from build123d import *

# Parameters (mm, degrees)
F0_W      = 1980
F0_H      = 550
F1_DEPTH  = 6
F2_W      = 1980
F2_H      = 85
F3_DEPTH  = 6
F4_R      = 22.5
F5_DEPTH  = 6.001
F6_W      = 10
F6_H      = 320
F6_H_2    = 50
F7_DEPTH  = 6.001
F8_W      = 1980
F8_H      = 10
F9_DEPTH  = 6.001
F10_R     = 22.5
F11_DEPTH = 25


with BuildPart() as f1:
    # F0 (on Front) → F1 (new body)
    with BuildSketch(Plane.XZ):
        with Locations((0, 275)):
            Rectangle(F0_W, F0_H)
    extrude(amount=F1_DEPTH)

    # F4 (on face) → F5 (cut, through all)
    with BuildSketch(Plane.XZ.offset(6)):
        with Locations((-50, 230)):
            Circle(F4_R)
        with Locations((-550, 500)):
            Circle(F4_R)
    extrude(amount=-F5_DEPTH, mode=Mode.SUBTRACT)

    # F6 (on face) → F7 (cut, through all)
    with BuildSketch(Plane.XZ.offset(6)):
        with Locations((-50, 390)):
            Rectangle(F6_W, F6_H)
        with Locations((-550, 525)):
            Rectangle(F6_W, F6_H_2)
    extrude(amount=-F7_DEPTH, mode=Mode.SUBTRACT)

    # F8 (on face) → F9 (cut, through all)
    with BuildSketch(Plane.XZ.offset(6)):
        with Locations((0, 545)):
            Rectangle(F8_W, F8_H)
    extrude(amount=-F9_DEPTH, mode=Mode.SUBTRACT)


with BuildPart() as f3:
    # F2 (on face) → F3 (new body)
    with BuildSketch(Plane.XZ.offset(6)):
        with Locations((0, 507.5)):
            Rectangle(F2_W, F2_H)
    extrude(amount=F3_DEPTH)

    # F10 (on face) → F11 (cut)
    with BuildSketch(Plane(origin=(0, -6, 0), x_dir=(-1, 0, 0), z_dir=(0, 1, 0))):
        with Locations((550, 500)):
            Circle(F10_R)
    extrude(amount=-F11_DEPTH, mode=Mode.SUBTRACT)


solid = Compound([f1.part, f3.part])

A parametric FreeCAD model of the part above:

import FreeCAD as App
import Part
import Sketcher

V = App.Vector

doc = App.newDocument("Part")
body = doc.addObject("PartDesign::Body", "Body")

# Sketch on XZ plane
sketch1 = doc.addObject("Sketcher::SketchObject", "Sketch")
body.addObject(sketch1)
sketch1.AttachmentSupport = (doc.XZ_Plane, [""])
sketch1.MapMode = "FlatFace"
sketch1.addGeometry([
    Part.LineSegment(V(-990, 550, 0), V(-990, 0, 0)),
    Part.LineSegment(V(-990, 0, 0), V(990, 0, 0)),
    Part.LineSegment(V(990, 0, 0), V(990, 550, 0)),
    Part.LineSegment(V(990, 550, 0), V(-990, 550, 0)),
], False)
sketch1.addConstraint([
    Sketcher.Constraint("Coincident", 0, 2, 1, 1),
    Sketcher.Constraint("Coincident", 1, 2, 2, 1),
    Sketcher.Constraint("Coincident", 2, 2, 3, 1),
    Sketcher.Constraint("Coincident", 3, 2, 0, 1),
    Sketcher.Constraint("Vertical", 0),
    Sketcher.Constraint("Horizontal", 1),
    Sketcher.Constraint("Vertical", 2),
    Sketcher.Constraint("Horizontal", 3),
    Sketcher.Constraint("Symmetric", 0, 2, 1, 2, -1, 1),
    Sketcher.Constraint("DistanceX", 1, 1, 1, 2, 1980.0),
    Sketcher.Constraint("DistanceY", 0, 2, 0, 1, 550.0),
])
pad1 = doc.addObject("PartDesign::Pad", "Pad")
body.addObject(pad1)
pad1.Profile = sketch1
pad1.Length = 6

# Sketch on XZ plane
sketch2 = doc.addObject("Sketcher::SketchObject", "Sketch001")
body.addObject(sketch2)
sketch2.AttachmentSupport = (doc.XZ_Plane, [""])
sketch2.MapMode = "FlatFace"
sketch2.AttachmentOffset = App.Placement(V(0, 0, 6), App.Rotation())
sketch2.addGeometry([
    Part.Circle(V(-50, 230, 0), V(0, 0, 1), 22),
    Part.Circle(V(-550, 500, 0), V(0, 0, 1), 22),
], False)
sketch2.addConstraint([
    Sketcher.Constraint("Equal", 0, 1),
    Sketcher.Constraint("Diameter", 0, 45.0),
    Sketcher.Constraint("DistanceX", 0, 3, -1, 1, 50.0),
    Sketcher.Constraint("DistanceY", -1, 1, 0, 3, 230.0),
    Sketcher.Constraint("DistanceX", 1, 3, -1, 1, 550.0),
    Sketcher.Constraint("DistanceY", -1, 1, 1, 3, 500.0),
])
pocket1 = doc.addObject("PartDesign::Pocket", "Pocket")
body.addObject(pocket1)
pocket1.Profile = sketch2
pocket1.Type = "ThroughAll"

# Sketch on XZ plane
sketch3 = doc.addObject("Sketcher::SketchObject", "Sketch002")
body.addObject(sketch3)
sketch3.AttachmentSupport = (doc.XZ_Plane, [""])
sketch3.MapMode = "FlatFace"
sketch3.AttachmentOffset = App.Placement(V(0, 0, 6), App.Rotation())
sketch3.addGeometry([
    Part.LineSegment(V(-55, 550, 0), V(-55, 230, 0)),  # 0
    Part.LineSegment(V(-55, 230, 0), V(-45, 230, 0)),  # 1
    Part.LineSegment(V(-45, 230, 0), V(-45, 550, 0)),  # 2
    Part.LineSegment(V(-45, 550, 0), V(-55, 550, 0)),  # 3
    Part.LineSegment(V(-555, 550, 0), V(-555, 500, 0)),  # 4
    Part.LineSegment(V(-555, 500, 0), V(-545, 500, 0)),  # 5
    Part.LineSegment(V(-545, 500, 0), V(-545, 550, 0)),  # 6
    Part.LineSegment(V(-545, 550, 0), V(-555, 550, 0)),  # 7
], False)
sketch3.addConstraint([
    Sketcher.Constraint("Coincident", 0, 2, 1, 1),
    Sketcher.Constraint("Coincident", 1, 2, 2, 1),
    Sketcher.Constraint("Coincident", 2, 2, 3, 1),
    Sketcher.Constraint("Coincident", 3, 2, 0, 1),
    Sketcher.Constraint("Coincident", 4, 2, 5, 1),
    Sketcher.Constraint("Coincident", 5, 2, 6, 1),
    Sketcher.Constraint("Coincident", 6, 2, 7, 1),
    Sketcher.Constraint("Coincident", 7, 2, 4, 1),
    Sketcher.Constraint("Vertical", 0),
    Sketcher.Constraint("Horizontal", 1),
    Sketcher.Constraint("Vertical", 2),
    Sketcher.Constraint("Horizontal", 3),
    Sketcher.Constraint("Vertical", 4),
    Sketcher.Constraint("Horizontal", 5),
    Sketcher.Constraint("Vertical", 6),
    Sketcher.Constraint("Horizontal", 7),
    Sketcher.Constraint("Horizontal", 3, 2, 6, 2),
    Sketcher.Constraint("Equal", 3, 5),
    Sketcher.Constraint("DistanceX", 1, 1, 1, 2, 10.0),
    Sketcher.Constraint("DistanceY", 0, 2, 0, 1, 320.0),
    Sketcher.Constraint("DistanceY", 4, 2, 4, 1, 50.0),
    Sketcher.Constraint("DistanceX", 0, 2, -1, 1, 55.0),
    Sketcher.Constraint("DistanceY", -1, 1, 0, 2, 230.0),
    Sketcher.Constraint("DistanceX", 4, 2, -1, 1, 555.0),
])
pocket2 = doc.addObject("PartDesign::Pocket", "Pocket001")
body.addObject(pocket2)
pocket2.Profile = sketch3
pocket2.Type = "ThroughAll"

# Sketch on XZ plane
sketch4 = doc.addObject("Sketcher::SketchObject", "Sketch003")
body.addObject(sketch4)
sketch4.AttachmentSupport = (doc.XZ_Plane, [""])
sketch4.MapMode = "FlatFace"
sketch4.AttachmentOffset = App.Placement(V(0, 0, 6), App.Rotation())
sketch4.addGeometry([
    Part.LineSegment(V(-990, 550, 0), V(-990, 540, 0)),
    Part.LineSegment(V(-990, 540, 0), V(990, 540, 0)),
    Part.LineSegment(V(990, 540, 0), V(990, 550, 0)),
    Part.LineSegment(V(990, 550, 0), V(-990, 550, 0)),
], False)
sketch4.addConstraint([
    Sketcher.Constraint("Coincident", 0, 2, 1, 1),
    Sketcher.Constraint("Coincident", 1, 2, 2, 1),
    Sketcher.Constraint("Coincident", 2, 2, 3, 1),
    Sketcher.Constraint("Coincident", 3, 2, 0, 1),
    Sketcher.Constraint("Vertical", 0),
    Sketcher.Constraint("Horizontal", 1),
    Sketcher.Constraint("Vertical", 2),
    Sketcher.Constraint("Horizontal", 3),
    Sketcher.Constraint("DistanceX", 1, 1, 1, 2, 1980.0),
    Sketcher.Constraint("DistanceY", 0, 2, 0, 1, 10.0),
    Sketcher.Constraint("DistanceX", 0, 2, -1, 1, 990.0),
    Sketcher.Constraint("DistanceY", -1, 1, 0, 2, 540.0),
])
pocket3 = doc.addObject("PartDesign::Pocket", "Pocket002")
body.addObject(pocket3)
pocket3.Profile = sketch4
pocket3.Type = "ThroughAll"
body2 = doc.addObject("PartDesign::Body", "Body001")

# Sketch on XZ plane
sketch5 = doc.addObject("Sketcher::SketchObject", "Sketch004")
body2.addObject(sketch5)
sketch5.AttachmentSupport = (doc.getObject("XZ_Plane001"), [""])
sketch5.MapMode = "FlatFace"
sketch5.AttachmentOffset = App.Placement(V(0, 0, 6), App.Rotation())
sketch5.addGeometry([
    Part.LineSegment(V(-990, 550, 0), V(-990, 465, 0)),
    Part.LineSegment(V(-990, 465, 0), V(990, 465, 0)),
    Part.LineSegment(V(990, 465, 0), V(990, 550, 0)),
    Part.LineSegment(V(990, 550, 0), V(-990, 550, 0)),
], False)
sketch5.addConstraint([
    Sketcher.Constraint("Coincident", 0, 2, 1, 1),
    Sketcher.Constraint("Coincident", 1, 2, 2, 1),
    Sketcher.Constraint("Coincident", 2, 2, 3, 1),
    Sketcher.Constraint("Coincident", 3, 2, 0, 1),
    Sketcher.Constraint("Vertical", 0),
    Sketcher.Constraint("Horizontal", 1),
    Sketcher.Constraint("Vertical", 2),
    Sketcher.Constraint("Horizontal", 3),
    Sketcher.Constraint("DistanceX", 1, 1, 1, 2, 1980.0),
    Sketcher.Constraint("DistanceY", 0, 2, 0, 1, 85.0),
    Sketcher.Constraint("DistanceX", 0, 2, -1, 1, 990.0),
    Sketcher.Constraint("DistanceY", -1, 1, 0, 2, 465.0),
])
pad2 = doc.addObject("PartDesign::Pad", "Pad001")
body2.addObject(pad2)
pad2.Profile = sketch5
pad2.Length = 6

# Sketch on XZ plane
sketch6 = doc.addObject("Sketcher::SketchObject", "Sketch005")
body2.addObject(sketch6)
sketch6.AttachmentSupport = (doc.getObject("XZ_Plane001"), [""])
sketch6.MapMode = "FlatFace"
sketch6.AttachmentOffset = App.Placement(V(0, 0, 6), App.Rotation())
sketch6.addGeometry(Part.Circle(V(-550, 500, 0), V(0, 0, 1), 22), False)
sketch6.addConstraint([
    Sketcher.Constraint("Diameter", 0, 45.0),
    Sketcher.Constraint("DistanceX", 0, 3, -1, 1, 550.0),
    Sketcher.Constraint("DistanceY", -1, 1, 0, 3, 500.0),
])
pocket4 = doc.addObject("PartDesign::Pocket", "Pocket003")
body2.addObject(pocket4)
pocket4.Profile = sketch6
pocket4.Length = 25
pocket4.Reversed = True

doc.recompute()
